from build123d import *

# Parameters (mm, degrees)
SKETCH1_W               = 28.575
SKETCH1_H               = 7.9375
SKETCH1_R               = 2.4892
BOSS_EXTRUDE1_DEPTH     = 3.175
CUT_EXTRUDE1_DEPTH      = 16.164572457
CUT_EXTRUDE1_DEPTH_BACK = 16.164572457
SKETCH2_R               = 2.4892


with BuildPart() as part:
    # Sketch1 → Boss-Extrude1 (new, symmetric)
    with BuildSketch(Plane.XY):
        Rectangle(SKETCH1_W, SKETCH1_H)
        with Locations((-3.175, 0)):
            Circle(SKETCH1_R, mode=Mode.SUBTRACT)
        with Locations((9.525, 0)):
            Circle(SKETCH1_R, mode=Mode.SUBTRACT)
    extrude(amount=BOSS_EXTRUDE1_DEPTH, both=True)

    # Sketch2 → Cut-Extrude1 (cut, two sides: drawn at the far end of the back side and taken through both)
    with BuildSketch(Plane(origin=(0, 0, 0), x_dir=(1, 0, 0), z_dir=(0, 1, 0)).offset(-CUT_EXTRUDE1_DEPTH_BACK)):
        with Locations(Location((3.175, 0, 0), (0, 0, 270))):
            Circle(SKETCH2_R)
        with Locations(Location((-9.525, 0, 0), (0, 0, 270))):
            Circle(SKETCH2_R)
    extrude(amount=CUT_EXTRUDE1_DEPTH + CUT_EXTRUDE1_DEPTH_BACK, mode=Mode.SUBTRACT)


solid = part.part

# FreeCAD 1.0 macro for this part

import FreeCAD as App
import Part
import Sketcher
Q = App.Units.Quantity

doc = App.newDocument("Part")
body = doc.addObject("PartDesign::Body", "Body")

# Sketch on XY plane
sketch1 = doc.addObject("Sketcher::SketchObject", "Sketch")
body.addObject(sketch1)
sketch1.AttachmentSupport = (doc.XY_Plane, [""])
sketch1.MapMode = "FlatFace"
sketch1.addGeometry([
    Part.LineSegment(App.Vector(-14.3, 4, 0), App.Vector(-14.3, -4, 0)),  # 0
    Part.LineSegment(App.Vector(-14.3, -4, 0), App.Vector(14.3, -4, 0)),  # 1
    Part.LineSegment(App.Vector(14.3, -4, 0), App.Vector(14.3, 4, 0)),  # 2
    Part.LineSegment(App.Vector(14.3, 4, 0), App.Vector(-14.3, 4, 0)),  # 3
    Part.Circle(App.Vector(-3.2, 0, 0), App.Vector(0, 0, 1), 2.5),  # 4
    Part.Circle(App.Vector(9.5, 0, 0), App.Vector(0, 0, 1), 2.5),  # 5
], False)
sketch1.addConstraint([
    Sketcher.Constraint("Coincident", 0, 2, 1, 1),
    Sketcher.Constraint("Coincident", 1, 2, 2, 1),
    Sketcher.Constraint("Coincident", 2, 2, 3, 1),
    Sketcher.Constraint("Coincident", 3, 2, 0, 1),
    Sketcher.Constraint("Vertical", 0),
    Sketcher.Constraint("Horizontal", 1),
    Sketcher.Constraint("Vertical", 2),
    Sketcher.Constraint("Horizontal", 3),
    Sketcher.Constraint("Equal", 4, 5),
    Sketcher.Constraint("Symmetric", 0, 2, 2, 2, -1, 1),
    Sketcher.Constraint("PointOnObject", 4, 3, -1),
    Sketcher.Constraint("PointOnObject", 5, 3, -1),
    Sketcher.Constraint("Diameter", 4, Q("0.196 in")),
    Sketcher.Constraint("DistanceX", 4, 3, 5, 3, Q("0.5 in")),
    Sketcher.Constraint("DistanceX", 1, 1, 1, 2, Q("1.125 in")),
    Sketcher.Constraint("DistanceY", 0, 2, 0, 1, Q("0.3125 in")),
    Sketcher.Constraint("DistanceX", 4, 3, -1, 1, Q("0.125 in")),
])
pad1 = doc.addObject("PartDesign::Pad", "Pad")
body.addObject(pad1)
pad1.Profile = sketch1
pad1.Length = Q("0.25 in")
pad1.Midplane = True

# Sketch on XZ plane
sketch2 = doc.addObject("Sketcher::SketchObject", "Sketch001")
body.addObject(sketch2)
sketch2.AttachmentSupport = (doc.XZ_Plane, [""])
sketch2.MapMode = "FlatFace"
sketch2.addGeometry([
    Part.Circle(App.Vector(3.2, 0, 0), App.Vector(0, 0, 1), 2.5),
    Part.Circle(App.Vector(-9.5, 0, 0), App.Vector(0, 0, 1), 2.5),
], False)
sketch2.addConstraint([
    Sketcher.Constraint("Equal", 0, 1),
    Sketcher.Constraint("PointOnObject", 0, 3, -1),
    Sketcher.Constraint("PointOnObject", 1, 3, -1),
    Sketcher.Constraint("Diameter", 0, Q("0.196 in")),
    Sketcher.Constraint("DistanceX", 1, 3, 0, 3, Q("0.5 in")),
    Sketcher.Constraint("DistanceX", -1, 1, 0, 3, Q("0.125 in")),
])
pocket1 = doc.addObject("PartDesign::Pocket", "Pocket")
body.addObject(pocket1)
pocket1.Profile = sketch2
pocket1.Type = "ThroughAll"
pocket1.Midplane = True

doc.recompute()
